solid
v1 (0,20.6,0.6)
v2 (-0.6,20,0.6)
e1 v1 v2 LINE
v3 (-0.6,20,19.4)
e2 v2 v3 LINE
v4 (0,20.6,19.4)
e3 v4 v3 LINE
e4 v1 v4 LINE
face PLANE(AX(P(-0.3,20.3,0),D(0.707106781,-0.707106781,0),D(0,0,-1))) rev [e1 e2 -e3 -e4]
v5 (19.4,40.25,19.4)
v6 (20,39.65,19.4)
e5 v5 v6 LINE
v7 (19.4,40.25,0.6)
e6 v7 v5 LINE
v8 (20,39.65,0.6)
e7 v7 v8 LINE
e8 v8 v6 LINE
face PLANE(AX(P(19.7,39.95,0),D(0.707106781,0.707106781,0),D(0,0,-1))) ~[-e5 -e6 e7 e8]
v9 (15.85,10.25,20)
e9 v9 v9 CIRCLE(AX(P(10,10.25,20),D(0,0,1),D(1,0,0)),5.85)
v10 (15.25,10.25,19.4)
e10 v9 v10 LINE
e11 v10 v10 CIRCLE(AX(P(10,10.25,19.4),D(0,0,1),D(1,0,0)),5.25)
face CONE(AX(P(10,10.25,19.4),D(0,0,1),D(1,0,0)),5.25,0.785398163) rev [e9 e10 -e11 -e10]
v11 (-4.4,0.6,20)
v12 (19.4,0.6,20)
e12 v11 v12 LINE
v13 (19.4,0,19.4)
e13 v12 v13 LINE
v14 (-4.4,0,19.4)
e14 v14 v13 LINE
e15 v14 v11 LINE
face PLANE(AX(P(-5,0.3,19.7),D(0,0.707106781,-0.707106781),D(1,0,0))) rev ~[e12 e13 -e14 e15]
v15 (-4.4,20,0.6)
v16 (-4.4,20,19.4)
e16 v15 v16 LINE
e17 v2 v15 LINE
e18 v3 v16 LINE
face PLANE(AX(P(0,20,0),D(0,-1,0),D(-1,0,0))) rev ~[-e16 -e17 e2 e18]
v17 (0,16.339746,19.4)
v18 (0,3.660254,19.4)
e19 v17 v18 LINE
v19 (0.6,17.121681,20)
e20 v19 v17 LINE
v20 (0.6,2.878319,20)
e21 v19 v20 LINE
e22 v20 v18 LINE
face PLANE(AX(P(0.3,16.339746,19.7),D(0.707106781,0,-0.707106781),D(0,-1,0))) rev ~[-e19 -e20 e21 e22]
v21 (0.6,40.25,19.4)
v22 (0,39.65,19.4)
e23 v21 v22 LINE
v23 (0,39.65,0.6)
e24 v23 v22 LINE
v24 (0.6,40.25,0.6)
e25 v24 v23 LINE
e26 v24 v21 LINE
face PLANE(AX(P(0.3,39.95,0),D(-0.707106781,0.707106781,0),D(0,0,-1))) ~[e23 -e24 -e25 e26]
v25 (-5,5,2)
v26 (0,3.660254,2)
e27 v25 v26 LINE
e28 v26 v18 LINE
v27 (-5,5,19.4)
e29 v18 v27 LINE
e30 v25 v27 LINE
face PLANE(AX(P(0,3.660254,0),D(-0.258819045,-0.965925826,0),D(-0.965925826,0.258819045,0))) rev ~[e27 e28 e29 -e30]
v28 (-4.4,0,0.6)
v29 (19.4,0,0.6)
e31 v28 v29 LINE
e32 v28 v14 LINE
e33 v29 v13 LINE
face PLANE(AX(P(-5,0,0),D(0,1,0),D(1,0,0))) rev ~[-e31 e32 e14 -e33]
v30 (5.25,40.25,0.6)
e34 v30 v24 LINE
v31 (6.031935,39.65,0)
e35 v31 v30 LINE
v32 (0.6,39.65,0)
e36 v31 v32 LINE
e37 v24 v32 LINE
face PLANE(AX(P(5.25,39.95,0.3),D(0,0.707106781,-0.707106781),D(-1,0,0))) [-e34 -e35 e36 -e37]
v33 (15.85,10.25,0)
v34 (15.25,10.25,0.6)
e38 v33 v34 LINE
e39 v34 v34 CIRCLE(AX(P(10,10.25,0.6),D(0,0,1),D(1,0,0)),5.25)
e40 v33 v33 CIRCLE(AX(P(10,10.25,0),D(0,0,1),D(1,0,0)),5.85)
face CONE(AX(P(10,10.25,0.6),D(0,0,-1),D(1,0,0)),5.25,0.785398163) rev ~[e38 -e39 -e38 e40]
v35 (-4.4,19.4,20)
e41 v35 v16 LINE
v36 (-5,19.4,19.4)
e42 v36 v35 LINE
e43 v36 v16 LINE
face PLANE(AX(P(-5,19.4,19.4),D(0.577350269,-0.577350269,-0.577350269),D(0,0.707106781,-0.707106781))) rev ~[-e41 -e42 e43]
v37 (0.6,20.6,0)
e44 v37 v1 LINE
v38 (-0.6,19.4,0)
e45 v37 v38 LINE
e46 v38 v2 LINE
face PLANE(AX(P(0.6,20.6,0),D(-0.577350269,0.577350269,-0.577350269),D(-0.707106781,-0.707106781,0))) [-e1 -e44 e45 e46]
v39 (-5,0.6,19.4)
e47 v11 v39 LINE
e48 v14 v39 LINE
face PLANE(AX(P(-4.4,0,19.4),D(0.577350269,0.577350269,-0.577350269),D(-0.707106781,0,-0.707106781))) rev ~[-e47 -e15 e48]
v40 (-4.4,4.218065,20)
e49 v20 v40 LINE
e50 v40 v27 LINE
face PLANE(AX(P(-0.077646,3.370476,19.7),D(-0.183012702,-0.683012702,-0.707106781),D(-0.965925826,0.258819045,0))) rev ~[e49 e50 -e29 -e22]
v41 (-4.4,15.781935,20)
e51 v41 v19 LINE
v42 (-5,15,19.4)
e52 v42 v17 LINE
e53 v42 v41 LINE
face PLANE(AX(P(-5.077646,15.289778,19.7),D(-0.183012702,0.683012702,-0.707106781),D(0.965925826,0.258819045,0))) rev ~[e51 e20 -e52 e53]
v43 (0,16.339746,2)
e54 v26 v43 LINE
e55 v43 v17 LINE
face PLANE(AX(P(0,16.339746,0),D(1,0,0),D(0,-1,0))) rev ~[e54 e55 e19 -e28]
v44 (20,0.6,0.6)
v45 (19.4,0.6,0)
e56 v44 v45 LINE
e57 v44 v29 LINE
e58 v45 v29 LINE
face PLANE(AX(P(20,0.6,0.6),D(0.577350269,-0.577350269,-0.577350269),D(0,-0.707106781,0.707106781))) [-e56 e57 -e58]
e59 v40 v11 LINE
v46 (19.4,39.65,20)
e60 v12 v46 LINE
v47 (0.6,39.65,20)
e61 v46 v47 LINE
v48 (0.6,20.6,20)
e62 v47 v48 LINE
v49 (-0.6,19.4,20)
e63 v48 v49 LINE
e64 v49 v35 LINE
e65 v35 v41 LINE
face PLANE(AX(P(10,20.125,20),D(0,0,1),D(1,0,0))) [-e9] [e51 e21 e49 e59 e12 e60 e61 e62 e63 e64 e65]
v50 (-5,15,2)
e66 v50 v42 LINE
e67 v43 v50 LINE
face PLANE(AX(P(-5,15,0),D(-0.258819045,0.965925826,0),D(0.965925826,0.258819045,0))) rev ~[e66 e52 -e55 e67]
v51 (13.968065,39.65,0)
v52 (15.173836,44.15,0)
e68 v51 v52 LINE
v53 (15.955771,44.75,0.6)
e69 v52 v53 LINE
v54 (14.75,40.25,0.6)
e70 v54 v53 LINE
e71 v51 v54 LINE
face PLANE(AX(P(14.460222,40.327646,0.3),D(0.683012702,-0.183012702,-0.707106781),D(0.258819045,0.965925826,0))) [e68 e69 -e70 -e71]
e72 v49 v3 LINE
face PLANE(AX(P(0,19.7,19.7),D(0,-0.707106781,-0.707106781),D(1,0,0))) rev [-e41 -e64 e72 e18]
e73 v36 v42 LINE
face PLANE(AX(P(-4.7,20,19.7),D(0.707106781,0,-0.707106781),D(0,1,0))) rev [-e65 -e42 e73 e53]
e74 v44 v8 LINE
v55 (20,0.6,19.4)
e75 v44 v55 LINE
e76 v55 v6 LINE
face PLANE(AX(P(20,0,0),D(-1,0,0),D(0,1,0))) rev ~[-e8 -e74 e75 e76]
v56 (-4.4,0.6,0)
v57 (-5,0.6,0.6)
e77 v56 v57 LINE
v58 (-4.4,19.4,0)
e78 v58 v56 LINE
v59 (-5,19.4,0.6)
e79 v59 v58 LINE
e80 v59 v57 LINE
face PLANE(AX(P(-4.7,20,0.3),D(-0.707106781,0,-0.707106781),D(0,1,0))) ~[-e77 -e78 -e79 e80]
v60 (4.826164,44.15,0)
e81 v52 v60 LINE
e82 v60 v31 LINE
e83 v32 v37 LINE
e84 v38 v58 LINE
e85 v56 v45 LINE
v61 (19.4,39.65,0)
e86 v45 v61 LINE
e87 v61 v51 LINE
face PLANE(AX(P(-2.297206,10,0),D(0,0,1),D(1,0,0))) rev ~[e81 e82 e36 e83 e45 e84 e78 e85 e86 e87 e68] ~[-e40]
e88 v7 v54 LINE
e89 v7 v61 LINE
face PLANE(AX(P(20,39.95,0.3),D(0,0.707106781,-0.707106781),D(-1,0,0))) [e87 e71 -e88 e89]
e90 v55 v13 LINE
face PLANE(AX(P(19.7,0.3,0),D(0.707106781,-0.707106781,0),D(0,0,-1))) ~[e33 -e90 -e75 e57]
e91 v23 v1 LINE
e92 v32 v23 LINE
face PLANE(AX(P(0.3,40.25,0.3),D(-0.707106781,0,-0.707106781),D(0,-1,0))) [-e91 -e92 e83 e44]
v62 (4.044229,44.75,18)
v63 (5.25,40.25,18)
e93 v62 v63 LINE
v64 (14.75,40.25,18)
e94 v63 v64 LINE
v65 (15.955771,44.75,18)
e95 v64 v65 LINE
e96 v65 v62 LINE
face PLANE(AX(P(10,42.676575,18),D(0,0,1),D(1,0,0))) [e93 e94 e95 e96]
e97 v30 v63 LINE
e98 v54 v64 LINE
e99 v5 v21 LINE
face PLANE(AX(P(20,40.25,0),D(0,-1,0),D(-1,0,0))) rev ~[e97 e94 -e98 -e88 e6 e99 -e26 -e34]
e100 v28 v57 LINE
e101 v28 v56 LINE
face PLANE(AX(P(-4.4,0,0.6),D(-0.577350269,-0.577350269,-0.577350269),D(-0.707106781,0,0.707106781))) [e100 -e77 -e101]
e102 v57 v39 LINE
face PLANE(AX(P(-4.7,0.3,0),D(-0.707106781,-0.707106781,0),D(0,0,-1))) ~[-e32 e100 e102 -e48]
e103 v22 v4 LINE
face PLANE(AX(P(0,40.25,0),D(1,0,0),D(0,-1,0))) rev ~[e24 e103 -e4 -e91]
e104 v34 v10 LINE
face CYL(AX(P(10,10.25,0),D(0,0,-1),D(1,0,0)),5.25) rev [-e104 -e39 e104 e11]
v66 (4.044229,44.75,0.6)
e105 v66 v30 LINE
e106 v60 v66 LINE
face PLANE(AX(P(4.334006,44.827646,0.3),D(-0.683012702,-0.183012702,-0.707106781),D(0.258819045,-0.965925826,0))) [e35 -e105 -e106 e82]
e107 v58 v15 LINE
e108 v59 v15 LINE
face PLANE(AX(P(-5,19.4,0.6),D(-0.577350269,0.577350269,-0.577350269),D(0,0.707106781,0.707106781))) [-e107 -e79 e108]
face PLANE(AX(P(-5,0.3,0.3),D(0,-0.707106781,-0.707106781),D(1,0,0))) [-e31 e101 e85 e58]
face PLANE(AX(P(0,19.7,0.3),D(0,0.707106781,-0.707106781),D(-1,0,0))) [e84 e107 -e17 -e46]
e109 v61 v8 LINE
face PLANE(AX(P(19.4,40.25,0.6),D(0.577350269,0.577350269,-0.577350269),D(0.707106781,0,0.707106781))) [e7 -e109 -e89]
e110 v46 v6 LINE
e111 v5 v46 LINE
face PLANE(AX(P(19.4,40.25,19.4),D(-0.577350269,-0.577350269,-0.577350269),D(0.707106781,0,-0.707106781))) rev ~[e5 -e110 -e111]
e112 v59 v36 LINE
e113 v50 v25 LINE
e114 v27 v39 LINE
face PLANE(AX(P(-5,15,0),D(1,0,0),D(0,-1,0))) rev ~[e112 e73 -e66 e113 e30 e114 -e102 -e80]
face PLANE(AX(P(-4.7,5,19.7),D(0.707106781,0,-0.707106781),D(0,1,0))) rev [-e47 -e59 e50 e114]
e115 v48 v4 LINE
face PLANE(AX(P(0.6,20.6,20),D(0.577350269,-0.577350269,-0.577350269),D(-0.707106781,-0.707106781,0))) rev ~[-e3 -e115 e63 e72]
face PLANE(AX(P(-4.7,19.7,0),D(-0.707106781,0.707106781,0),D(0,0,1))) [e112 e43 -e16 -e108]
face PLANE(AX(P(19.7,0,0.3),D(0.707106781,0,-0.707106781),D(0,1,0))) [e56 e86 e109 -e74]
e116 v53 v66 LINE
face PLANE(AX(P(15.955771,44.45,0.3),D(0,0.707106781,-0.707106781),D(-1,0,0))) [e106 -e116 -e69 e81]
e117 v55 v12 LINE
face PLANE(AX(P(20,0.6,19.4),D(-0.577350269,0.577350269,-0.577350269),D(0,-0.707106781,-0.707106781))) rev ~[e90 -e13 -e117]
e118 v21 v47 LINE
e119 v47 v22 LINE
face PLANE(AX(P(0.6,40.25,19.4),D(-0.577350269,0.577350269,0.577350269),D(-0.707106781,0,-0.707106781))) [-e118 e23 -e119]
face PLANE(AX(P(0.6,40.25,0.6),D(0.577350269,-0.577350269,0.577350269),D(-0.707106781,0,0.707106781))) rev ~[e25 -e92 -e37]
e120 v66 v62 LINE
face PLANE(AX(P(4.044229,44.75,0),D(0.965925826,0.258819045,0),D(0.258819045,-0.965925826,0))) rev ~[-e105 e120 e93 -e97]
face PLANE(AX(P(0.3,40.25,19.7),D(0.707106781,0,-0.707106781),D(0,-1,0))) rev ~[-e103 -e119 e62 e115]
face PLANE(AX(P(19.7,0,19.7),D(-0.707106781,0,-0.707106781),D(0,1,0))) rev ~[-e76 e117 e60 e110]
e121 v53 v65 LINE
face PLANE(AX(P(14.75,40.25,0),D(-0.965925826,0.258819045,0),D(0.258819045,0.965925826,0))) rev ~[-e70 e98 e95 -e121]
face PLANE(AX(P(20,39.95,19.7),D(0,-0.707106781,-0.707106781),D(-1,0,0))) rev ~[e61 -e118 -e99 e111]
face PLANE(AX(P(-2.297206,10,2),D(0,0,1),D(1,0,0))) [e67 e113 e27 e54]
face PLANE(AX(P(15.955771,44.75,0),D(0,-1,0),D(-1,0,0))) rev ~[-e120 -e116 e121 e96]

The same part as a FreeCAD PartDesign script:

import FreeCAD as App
import Part
import Sketcher
from FreeCAD import Vector
Q = App.Units.Quantity


def edges_at(feature, points):
    """Names of the edges that pass closest to the given points."""
    edges = feature.Shape.Edges
    near = lambda p: min(range(len(edges)), key=lambda i: edges[i].distToShape(Part.Vertex(*p))[0])
    return sorted({f"Edge{near(p) + 1}" for p in points})


def add_polygon(sketch, points):
    """Adds a closed chain of lines whose ends are joined by coincident constraints."""
    first, n = sketch.GeometryCount, len(points)
    for a, b in zip(points, points[1:] + points[:1]):
        sketch.addGeometry(Part.LineSegment(App.Vector(*a, 0), App.Vector(*b, 0)), False)
    for i in range(n):
        sketch.addConstraint(Sketcher.Constraint("Coincident", first + i, 2, first + (i + 1) % n, 1))

doc = App.newDocument("Part")
body = doc.addObject("PartDesign::Body", "Body")

# Sketch on XY plane
sketch1 = body.newObject("Sketcher::SketchObject", "Sketch")
sketch1.AttachmentSupport = (doc.getObject("XY_Plane"), [""])
sketch1.MapMode = "FlatFace"
add_polygon(sketch1, [(0, 40), (0, 20), (-5, 20), (-5, 15), (0, 16), (0, 4), (-5, 5), (-5, 0), (20, 0), (20, 40)])  # lines 0-9
sketch1.addGeometry(Part.Circle(Vector(10, 10, 0), Vector(0, 0, 1), 5), False)  # 10
sketch1.addConstraint(Sketcher.Constraint("Vertical", 0))
sketch1.addConstraint(Sketcher.Constraint("Horizontal", 1))
sketch1.addConstraint(Sketcher.Constraint("Vertical", 2))
sketch1.addConstraint(Sketcher.Constraint("Vertical", 4))
sketch1.addConstraint(Sketcher.Constraint("Vertical", 6))
sketch1.addConstraint(Sketcher.Constraint("Horizontal", 7))
sketch1.addConstraint(Sketcher.Constraint("Vertical", 8))
sketch1.addConstraint(Sketcher.Constraint("Horizontal", 9))
sketch1.addConstraint(Sketcher.Constraint("PointOnObject", 0, 2, -2))
sketch1.addConstraint(Sketcher.Constraint("PointOnObject", 3, 2, -2))
sketch1.addConstraint(Sketcher.Constraint("PointOnObject", 6, 2, -1))
sketch1.addConstraint(Sketcher.Constraint("Vertical", 2, 2, 5, 2))
sketch1.addConstraint(Sketcher.Constraint("Equal", 1, 2))
sketch1.addConstraint(Sketcher.Constraint("Equal", 2, 6))
sketch1.addConstraint(Sketcher.Constraint("Equal", 3, 5))
sketch1.addConstraint(Sketcher.Constraint("Diameter", 10, 10.5))
sketch1.addConstraint(Sketcher.Constraint("DistanceX", 1, 2, 1, 1, 5.0))
sketch1.addConstraint(Sketcher.Constraint("DistanceX", 7, 1, 7, 2, 25.0))
sketch1.addConstraint(Sketcher.Constraint("Angle", 3, Q("15 deg")))
sketch1.addConstraint(Sketcher.Constraint("DistanceX", -1, 1, 10, 3, 10.0))
sketch1.addConstraint(Sketcher.Constraint("DistanceY", -1, 1, 0, 2, 20.0))
sketch1.addConstraint(Sketcher.Constraint("DistanceY", 10, 3, 8, 2, 30.0))
sketch1.addConstraint(Sketcher.Constraint("DistanceY", 0, 2, 0, 1, 20.25))
pad1 = body.newObject("PartDesign::Pad", "Pad")
pad1.Profile = sketch1
pad1.Length = 20

# Sketch on XY plane
sketch2 = body.newObject("Sketcher::SketchObject", "Sketch001")
sketch2.AttachmentSupport = (doc.getObject("XY_Plane"), [""])
sketch2.MapMode = "FlatFace"
add_polygon(sketch2, [(0, 4), (0, 16), (-5, 15), (-5, 5)])  # lines 0-3
sketch2.addConstraint(Sketcher.Constraint("Vertical", 0))
sketch2.addConstraint(Sketcher.Constraint("Vertical", 2))
sketch2.addConstraint(Sketcher.Constraint("PointOnObject", 0, 2, -2))
sketch2.addConstraint(Sketcher.Constraint("Equal", 1, 3))
sketch2.addConstraint(Sketcher.Constraint("DistanceY", 2, 2, 2, 1, 10.0))
sketch2.addConstraint(Sketcher.Constraint("Angle", 1, Q("-165 deg")))
sketch2.addConstraint(Sketcher.Constraint("DistanceX", 1, 2, -1, 1, 5.0))
sketch2.addConstraint(Sketcher.Constraint("DistanceY", -1, 1, 1, 2, 15.0))
pad2 = body.newObject("PartDesign::Pad", "Pad001")
pad2.Profile = sketch2
pad2.Length = 2

# Sketch on XY plane
sketch3 = body.newObject("Sketcher::SketchObject", "Sketch002")
sketch3.AttachmentSupport = (doc.getObject("XY_Plane"), [""])
sketch3.MapMode = "FlatFace"
add_polygon(sketch3, [(4, 44.8), (5.2, 40.2), (14.8, 40.2), (16, 44.8)])  # lines 0-3
sketch3.addConstraint(Sketcher.Constraint("Horizontal", 1))
sketch3.addConstraint(Sketcher.Constraint("Horizontal", 3))
sketch3.addConstraint(Sketcher.Constraint("Equal", 0, 2))
sketch3.addConstraint(Sketcher.Constraint("Angle", 0, Q("-75 deg")))
sketch3.addConstraint(Sketcher.Constraint("DistanceX", 1, 1, 1, 2, 9.5))
sketch3.addConstraint(Sketcher.Constraint("DistanceY", 1, 2, 2, 2, 4.5))
sketch3.addConstraint(Sketcher.Constraint("DistanceX", -1, 1, 0, 2, 5.25))
sketch3.addConstraint(Sketcher.Constraint("DistanceY", -1, 1, 0, 2, 40.25))
pad3 = body.newObject("PartDesign::Pad", "Pad002")
pad3.Profile = sketch3
pad3.Length = 18
doc.recompute()

chamfer = body.newObject("PartDesign::Chamfer", "Chamfer")
chamfer.Base = (pad3, edges_at(pad3, [
    (0, 30.125, 0),
    (-2.5, 20, 0),
    (-5, 10, 0),
    (7.5, 0, 0),
    (20, 20.125, 0),
    (17.375, 40.25, 0),
    (15.353, 42.5, 0),
    (10, 44.75, 0),
    (4.647, 42.5, 0),
    (2.625, 40.25, 0),
    (4.75, 10.25, 0),
    (0, 30.125, 20),
    (-2.5, 20, 20),
    (-5, 17.5, 20),
    (-2.5, 15.67, 20),
    (0, 10, 20),
    (-2.5, 4.33, 20),
    (-5, 2.5, 20),
    (7.5, 0, 20),
    (20, 20.125, 20),
    (10, 40.25, 20),
    (4.75, 10.25, 20),
    (-5, 0, 10),
    (20, 0, 10),
    (20, 40.25, 10),
    (0, 20, 10),
    (-5, 20, 10),
    (0, 40.25, 10),
]))
chamfer.Size = 0.6

doc.recompute()
